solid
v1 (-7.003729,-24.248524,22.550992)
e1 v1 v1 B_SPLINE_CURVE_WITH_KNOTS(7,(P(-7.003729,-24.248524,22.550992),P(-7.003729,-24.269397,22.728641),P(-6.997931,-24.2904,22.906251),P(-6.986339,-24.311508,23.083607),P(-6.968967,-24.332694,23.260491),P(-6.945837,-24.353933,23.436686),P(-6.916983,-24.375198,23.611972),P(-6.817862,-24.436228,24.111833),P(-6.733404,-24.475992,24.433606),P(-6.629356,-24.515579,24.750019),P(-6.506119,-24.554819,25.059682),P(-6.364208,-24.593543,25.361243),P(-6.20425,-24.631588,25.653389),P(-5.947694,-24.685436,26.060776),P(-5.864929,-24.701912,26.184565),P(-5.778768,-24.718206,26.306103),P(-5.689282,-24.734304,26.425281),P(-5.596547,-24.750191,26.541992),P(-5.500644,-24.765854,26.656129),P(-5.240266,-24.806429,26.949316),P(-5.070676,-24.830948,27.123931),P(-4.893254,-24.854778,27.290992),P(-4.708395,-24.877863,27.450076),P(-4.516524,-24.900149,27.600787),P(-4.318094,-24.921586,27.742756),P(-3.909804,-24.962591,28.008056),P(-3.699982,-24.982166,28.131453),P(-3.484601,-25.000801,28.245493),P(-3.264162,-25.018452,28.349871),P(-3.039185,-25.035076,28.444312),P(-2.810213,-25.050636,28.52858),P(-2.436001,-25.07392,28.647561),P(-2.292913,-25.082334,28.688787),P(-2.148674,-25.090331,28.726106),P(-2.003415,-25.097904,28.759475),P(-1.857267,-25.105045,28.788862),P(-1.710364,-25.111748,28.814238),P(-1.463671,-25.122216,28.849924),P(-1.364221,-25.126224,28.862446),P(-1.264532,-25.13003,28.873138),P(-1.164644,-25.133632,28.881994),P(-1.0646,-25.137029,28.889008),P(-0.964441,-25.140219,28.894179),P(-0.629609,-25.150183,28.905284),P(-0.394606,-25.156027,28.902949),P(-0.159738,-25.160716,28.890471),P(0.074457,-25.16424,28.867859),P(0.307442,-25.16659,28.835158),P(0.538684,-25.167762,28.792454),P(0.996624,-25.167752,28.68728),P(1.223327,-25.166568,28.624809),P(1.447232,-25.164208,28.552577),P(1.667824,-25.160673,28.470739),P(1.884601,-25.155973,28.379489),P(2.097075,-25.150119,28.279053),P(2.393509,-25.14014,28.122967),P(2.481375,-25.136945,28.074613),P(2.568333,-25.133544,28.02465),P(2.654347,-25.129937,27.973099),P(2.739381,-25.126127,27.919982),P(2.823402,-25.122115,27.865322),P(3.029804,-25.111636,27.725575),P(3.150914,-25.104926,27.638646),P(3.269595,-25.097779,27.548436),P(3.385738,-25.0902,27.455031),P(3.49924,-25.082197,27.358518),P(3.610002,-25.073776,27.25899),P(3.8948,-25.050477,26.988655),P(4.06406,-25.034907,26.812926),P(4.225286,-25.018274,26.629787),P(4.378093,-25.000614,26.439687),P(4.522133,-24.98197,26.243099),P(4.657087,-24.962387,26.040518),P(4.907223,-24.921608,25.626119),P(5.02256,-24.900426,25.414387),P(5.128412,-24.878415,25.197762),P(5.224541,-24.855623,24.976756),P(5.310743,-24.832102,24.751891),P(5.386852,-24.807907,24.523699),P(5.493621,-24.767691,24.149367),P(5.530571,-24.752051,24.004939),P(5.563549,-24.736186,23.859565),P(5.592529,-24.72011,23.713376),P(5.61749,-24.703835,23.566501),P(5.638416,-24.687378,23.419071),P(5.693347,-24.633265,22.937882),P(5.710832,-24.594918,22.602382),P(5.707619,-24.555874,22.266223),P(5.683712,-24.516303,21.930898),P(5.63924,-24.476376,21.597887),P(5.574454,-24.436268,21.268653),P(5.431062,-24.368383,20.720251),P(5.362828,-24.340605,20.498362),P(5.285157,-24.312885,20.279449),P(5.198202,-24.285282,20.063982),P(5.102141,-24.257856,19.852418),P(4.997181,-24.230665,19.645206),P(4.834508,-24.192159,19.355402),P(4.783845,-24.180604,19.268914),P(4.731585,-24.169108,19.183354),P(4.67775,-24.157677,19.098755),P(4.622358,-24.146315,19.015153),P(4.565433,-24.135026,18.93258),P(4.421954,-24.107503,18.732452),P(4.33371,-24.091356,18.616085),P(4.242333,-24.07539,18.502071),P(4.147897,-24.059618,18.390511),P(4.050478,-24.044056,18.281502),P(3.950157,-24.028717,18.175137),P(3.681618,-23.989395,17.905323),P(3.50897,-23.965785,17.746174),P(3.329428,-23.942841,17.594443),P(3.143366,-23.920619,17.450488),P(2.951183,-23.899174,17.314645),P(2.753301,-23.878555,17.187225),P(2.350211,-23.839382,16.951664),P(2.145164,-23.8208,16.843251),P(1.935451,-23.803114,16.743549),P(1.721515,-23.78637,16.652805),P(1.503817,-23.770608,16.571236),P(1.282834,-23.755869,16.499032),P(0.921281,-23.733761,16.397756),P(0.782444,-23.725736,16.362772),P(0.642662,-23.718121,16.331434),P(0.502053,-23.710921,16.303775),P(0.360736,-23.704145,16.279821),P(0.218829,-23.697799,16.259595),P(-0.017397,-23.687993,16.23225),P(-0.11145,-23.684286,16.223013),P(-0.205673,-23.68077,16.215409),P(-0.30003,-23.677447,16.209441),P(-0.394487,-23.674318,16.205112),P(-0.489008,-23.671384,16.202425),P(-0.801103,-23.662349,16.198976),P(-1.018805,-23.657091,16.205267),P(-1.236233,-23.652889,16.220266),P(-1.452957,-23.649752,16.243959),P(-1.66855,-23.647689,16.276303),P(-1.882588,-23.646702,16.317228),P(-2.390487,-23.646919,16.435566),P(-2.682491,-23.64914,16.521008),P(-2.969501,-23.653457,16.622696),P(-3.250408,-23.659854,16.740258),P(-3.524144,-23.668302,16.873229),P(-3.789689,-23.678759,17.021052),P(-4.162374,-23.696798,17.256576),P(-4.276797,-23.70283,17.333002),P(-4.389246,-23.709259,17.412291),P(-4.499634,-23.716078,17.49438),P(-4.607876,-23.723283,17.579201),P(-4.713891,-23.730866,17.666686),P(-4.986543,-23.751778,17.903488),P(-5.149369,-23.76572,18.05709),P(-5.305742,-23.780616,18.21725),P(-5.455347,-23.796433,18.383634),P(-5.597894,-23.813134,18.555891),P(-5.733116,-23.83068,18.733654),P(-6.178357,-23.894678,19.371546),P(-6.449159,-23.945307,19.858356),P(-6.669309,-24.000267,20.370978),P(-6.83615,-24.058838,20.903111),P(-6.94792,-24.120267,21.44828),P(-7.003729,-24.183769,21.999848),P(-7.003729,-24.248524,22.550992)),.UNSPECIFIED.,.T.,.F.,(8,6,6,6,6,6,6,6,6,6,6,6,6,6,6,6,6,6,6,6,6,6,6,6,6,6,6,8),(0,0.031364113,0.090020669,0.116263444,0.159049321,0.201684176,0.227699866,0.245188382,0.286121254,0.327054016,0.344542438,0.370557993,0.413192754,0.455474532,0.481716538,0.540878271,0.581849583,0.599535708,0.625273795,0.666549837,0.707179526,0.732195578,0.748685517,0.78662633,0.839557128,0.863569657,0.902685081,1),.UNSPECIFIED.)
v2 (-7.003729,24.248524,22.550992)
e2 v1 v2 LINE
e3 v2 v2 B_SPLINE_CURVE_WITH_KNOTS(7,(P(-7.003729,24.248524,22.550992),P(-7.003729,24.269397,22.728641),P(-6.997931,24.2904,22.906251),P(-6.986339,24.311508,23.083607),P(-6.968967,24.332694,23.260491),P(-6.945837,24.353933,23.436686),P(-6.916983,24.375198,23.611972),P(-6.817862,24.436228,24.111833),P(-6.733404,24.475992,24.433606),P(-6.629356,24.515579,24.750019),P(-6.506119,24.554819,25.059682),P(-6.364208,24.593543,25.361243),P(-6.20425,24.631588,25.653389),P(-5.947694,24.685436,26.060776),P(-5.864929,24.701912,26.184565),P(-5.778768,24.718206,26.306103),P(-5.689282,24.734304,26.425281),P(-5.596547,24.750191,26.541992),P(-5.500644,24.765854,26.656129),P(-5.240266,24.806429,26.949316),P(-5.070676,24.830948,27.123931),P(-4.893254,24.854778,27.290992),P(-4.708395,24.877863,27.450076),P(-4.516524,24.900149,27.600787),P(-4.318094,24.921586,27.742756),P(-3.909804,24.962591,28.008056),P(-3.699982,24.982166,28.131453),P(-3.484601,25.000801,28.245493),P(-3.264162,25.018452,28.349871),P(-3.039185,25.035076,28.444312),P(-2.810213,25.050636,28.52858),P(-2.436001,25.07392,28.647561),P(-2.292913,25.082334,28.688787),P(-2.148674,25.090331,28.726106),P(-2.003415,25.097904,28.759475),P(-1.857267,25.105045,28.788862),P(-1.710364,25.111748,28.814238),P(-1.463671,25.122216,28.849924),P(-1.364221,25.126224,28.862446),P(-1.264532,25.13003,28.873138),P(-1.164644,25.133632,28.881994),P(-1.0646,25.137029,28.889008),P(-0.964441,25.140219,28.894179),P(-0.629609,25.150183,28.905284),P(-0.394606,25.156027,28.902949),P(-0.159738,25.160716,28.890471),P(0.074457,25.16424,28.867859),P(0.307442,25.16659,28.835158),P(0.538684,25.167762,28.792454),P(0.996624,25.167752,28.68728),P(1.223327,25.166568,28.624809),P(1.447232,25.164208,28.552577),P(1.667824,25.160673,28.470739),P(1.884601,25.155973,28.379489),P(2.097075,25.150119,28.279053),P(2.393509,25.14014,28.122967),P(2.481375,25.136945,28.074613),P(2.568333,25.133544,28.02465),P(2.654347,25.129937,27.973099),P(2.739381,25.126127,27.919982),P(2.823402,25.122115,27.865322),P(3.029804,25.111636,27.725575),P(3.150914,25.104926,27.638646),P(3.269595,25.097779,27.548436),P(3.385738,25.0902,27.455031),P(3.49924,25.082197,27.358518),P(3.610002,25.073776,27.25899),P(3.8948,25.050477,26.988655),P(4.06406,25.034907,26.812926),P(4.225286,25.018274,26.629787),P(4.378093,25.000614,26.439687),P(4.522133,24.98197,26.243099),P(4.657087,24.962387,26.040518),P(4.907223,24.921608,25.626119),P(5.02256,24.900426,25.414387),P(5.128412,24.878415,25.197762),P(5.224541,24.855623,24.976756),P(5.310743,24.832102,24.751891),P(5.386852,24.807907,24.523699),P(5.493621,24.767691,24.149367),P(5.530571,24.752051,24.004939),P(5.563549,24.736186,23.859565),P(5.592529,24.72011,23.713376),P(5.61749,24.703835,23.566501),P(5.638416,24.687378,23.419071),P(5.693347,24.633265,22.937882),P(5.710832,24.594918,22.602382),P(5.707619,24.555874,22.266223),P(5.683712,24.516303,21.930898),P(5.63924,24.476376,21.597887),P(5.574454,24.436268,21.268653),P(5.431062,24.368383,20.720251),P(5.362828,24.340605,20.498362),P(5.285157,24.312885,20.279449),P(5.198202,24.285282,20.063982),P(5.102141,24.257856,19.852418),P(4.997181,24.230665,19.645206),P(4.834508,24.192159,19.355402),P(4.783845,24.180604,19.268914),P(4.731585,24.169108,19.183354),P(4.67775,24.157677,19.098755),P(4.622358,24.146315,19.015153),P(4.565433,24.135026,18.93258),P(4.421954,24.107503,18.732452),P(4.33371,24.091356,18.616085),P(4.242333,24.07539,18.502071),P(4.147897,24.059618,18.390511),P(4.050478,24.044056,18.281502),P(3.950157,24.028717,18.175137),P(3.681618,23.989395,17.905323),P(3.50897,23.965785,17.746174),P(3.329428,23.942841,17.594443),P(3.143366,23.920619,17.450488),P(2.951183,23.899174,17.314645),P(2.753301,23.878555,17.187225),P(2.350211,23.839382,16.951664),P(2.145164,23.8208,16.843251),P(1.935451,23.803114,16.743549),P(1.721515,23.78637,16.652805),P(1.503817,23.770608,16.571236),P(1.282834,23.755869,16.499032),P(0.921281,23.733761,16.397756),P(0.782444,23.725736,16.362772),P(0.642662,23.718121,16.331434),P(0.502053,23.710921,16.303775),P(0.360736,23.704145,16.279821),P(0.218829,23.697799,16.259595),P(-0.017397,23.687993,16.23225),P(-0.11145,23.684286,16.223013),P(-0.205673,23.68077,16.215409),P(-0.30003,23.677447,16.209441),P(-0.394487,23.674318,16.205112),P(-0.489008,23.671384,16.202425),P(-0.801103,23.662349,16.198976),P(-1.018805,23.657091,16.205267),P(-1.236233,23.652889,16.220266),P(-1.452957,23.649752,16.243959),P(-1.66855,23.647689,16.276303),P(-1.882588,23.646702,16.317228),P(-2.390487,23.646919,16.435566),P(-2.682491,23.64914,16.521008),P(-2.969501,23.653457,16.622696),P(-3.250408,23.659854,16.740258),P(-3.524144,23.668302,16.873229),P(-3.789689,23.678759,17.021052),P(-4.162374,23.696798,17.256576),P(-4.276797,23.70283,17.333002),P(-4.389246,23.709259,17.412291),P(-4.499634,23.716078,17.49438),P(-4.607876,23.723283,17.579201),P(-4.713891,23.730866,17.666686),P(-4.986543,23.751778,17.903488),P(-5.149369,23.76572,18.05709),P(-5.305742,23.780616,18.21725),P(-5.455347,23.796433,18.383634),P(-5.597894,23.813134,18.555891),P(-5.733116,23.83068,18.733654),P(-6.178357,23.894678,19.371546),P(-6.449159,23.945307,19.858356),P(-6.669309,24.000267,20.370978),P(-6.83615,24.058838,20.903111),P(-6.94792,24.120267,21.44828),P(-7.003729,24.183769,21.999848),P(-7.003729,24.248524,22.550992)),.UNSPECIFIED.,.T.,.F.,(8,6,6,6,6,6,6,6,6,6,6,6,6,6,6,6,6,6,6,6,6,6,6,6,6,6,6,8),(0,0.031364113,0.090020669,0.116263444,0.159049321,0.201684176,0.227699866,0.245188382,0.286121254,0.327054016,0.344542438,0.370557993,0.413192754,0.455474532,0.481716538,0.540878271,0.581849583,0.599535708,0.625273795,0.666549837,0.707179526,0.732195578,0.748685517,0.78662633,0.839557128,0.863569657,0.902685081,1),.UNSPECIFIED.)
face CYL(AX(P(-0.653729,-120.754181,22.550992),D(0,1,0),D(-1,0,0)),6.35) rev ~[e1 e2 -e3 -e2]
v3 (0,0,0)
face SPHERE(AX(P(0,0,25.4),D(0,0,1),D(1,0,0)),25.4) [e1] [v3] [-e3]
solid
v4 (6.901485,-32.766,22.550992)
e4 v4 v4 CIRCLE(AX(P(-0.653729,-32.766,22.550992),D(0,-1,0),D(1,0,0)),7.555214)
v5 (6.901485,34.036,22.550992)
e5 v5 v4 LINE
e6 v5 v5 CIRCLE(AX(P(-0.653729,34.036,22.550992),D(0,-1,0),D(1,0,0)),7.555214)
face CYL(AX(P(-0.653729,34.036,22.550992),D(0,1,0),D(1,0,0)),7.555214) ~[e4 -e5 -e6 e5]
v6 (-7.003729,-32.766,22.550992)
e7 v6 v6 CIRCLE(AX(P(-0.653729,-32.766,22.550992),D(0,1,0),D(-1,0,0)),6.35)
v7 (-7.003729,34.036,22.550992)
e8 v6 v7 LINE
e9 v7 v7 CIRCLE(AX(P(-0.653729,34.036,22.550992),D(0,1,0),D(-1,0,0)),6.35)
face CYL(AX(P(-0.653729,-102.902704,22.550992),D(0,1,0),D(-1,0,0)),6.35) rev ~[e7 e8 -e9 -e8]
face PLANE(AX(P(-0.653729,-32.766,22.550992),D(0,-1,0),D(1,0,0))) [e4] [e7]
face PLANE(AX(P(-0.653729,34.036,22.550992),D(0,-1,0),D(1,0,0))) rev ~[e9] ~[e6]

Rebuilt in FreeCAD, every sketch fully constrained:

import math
import FreeCAD as App
import Part
import Sketcher

V = App.Vector
Q = App.Units.Quantity


def faces_at(feature, points):
    """Names of the faces that lie closest to the given points."""
    faces = feature.Shape.Faces
    near = lambda p: min(range(len(faces)), key=lambda i: faces[i].distToShape(Part.Vertex(*p))[0])
    return sorted({f"Face{near(p) + 1}" for p in points})

doc = App.newDocument("Part")
body = doc.addObject("PartDesign::Body", "Body")

# Sketch on XZ plane
sketch1 = body.newObject("Sketcher::SketchObject", "Sketch")
sketch1.AttachmentSupport = (doc.getObject("XZ_Plane"), [""])
sketch1.MapMode = "FlatFace"
sketch1.addGeometry(Part.LineSegment(V(0, 51, 0), V(0, 0, 0)), False)
sketch1.addGeometry(Part.ArcOfCircle(Part.Circle(V(0, 25, 0), V(0, 0, 1), 25), math.radians(-90), math.radians(90)), False)
sketch1.addConstraint(Sketcher.Constraint("Coincident", 0, 1, 1, 2))
sketch1.addConstraint(Sketcher.Constraint("Coincident", 1, 1, 0, 2))
sketch1.addConstraint(Sketcher.Constraint("Vertical", 0))
sketch1.addConstraint(Sketcher.Constraint("Coincident", 1, 1, -1, 1))
sketch1.addConstraint(Sketcher.Constraint("PointOnObject", 1, 3, -2))
sketch1.addConstraint(Sketcher.Constraint("Radius", 1, Q("1 in")))
revolution = body.newObject("PartDesign::Revolution", "Revolution")
revolution.Profile = sketch1
revolution.ReferenceAxis = (sketch1, ["V_Axis"])
revolution.Angle = 360

# Sketch on XZ plane
sketch2 = body.newObject("Sketcher::SketchObject", "Sketch001")
sketch2.AttachmentSupport = (doc.getObject("XZ_Plane"), [""])
sketch2.MapMode = "FlatFace"
sketch2.AttachmentOffset = App.Placement(V(0, 0, 1.29 * 25.4), App.Rotation())
sketch2.addGeometry(Part.Circle(V(-1, 23, 0), V(0, 0, 1), 6), False)
sketch2.addConstraint(Sketcher.Constraint("Diameter", 0, Q("0.5 in")))
sketch2.addConstraint(Sketcher.Constraint("DistanceX", 0, 3, -1, 1, Q("0.653729 mm")))
sketch2.addConstraint(Sketcher.Constraint("DistanceY", -1, 1, 0, 3, Q("22.550992 mm")))
doc.recompute()
hole = body.newObject("PartDesign::Hole", "Hole")
hole.Profile = sketch2
hole.ThreadType = "None"
hole.Diameter = Q("0.5 in")
hole.DepthType = "ThroughAll"
body2 = doc.addObject("PartDesign::Body", "Body001")

# Sketch on XZ plane
sketch3 = body2.newObject("Sketcher::SketchObject", "Sketch002")
sketch3.AttachmentSupport = (doc.getObject("XZ_Plane001"), [""])
sketch3.MapMode = "FlatFace"
sketch3.addGeometry(Part.Circle(V(16, -18, 0), V(0, 0, 1), 8), False)
sketch3.addConstraint(Sketcher.Constraint("Diameter", 0, Q("15.110428 mm")))
sketch3.addConstraint(Sketcher.Constraint("DistanceX", -1, 1, 0, 3, Q("16.364271 mm")))
sketch3.addConstraint(Sketcher.Constraint("DistanceY", 0, 3, -1, 1, Q("18.089008 mm")))
pad1 = body2.newObject("PartDesign::Pad", "Pad")
pad1.Profile = sketch3
pad1.Length = Q("2.63 in")
body3 = doc.addObject("PartDesign::Body", "Body002")
doc.recompute()

body2.Placement = App.Placement(V(-17.018, 34.036, 40.64), App.Rotation(V(0, 0, 1), 0))
boolean = body3.newObject("PartDesign::Boolean", "Boolean")
boolean.Type = "Fuse"
boolean.addObjects([body2])
doc.recompute()

thickness = body3.newObject("PartDesign::Thickness", "Thickness")
thickness.Base = (boolean, faces_at(boolean, [(-0.654, -32.766, 22.551), (-0.654, 34.036, 22.551)]))
thickness.Value = Q("0.1 in")
thickness.Reversed = True
thickness.Join = "Arc"

# Sketch on XZ plane
sketch4 = body3.newObject("Sketcher::SketchObject", "Sketch003")
sketch4.AttachmentSupport = (doc.getObject("XZ_Plane002"), [""])
sketch4.MapMode = "FlatFace"
sketch4.AttachmentOffset = App.Placement(V(0, 0, 1.29 * 25.4), App.Rotation())
sketch4.addGeometry(Part.Circle(V(-1, 23, 0), V(0, 0, 1), 6), False)
sketch4.addConstraint(Sketcher.Constraint("Diameter", 0, Q("0.5 in")))
sketch4.addConstraint(Sketcher.Constraint("DistanceX", 0, 3, -1, 1, Q("0.653729 mm")))
sketch4.addConstraint(Sketcher.Constraint("DistanceY", -1, 1, 0, 3, Q("22.550992 mm")))
doc.recompute()
hole2 = body3.newObject("PartDesign::Hole", "Hole001")
hole2.Profile = sketch4
hole2.ThreadType = "None"
hole2.Diameter = Q("0.5 in")
hole2.DepthType = "ThroughAll"

doc.recompute()
